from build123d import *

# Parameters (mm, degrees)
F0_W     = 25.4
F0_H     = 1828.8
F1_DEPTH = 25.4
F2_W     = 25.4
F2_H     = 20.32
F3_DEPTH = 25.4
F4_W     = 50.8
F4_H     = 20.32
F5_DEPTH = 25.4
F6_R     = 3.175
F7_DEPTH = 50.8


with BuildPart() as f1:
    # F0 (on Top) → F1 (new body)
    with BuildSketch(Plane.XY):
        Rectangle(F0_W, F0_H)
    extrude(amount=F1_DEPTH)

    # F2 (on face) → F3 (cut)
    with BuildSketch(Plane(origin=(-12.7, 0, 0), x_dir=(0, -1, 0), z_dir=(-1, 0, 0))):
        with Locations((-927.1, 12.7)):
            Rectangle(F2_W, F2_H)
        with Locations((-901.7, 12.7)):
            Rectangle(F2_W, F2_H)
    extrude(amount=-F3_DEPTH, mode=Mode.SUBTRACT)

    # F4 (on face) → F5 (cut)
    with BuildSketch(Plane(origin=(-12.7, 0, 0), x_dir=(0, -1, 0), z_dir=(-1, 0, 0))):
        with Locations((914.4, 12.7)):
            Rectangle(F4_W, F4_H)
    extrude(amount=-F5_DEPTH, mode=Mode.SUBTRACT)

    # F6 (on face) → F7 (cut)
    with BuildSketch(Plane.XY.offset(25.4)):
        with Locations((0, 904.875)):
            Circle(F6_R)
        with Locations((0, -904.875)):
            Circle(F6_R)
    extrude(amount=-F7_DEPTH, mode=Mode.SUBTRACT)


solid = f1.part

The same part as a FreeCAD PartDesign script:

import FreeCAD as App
import Part
import Sketcher
Q = App.Units.Quantity

doc = App.newDocument("Part")
body = doc.addObject("PartDesign::Body", "Body")

# Sketch on XY plane
sketch1 = doc.addObject("Sketcher::SketchObject", "Sketch")
body.addObject(sketch1)
sketch1.AttachmentSupport = (doc.XY_Plane, [""])
sketch1.MapMode = "FlatFace"
sketch1.addGeometry(Part.LineSegment(App.Vector(-13, 914, 0), App.Vector(-13, -914, 0)), False)
sketch1.addGeometry(Part.LineSegment(App.Vector(-13, -914, 0), App.Vector(13, -914, 0)), False)
sketch1.addGeometry(Part.LineSegment(App.Vector(13, -914, 0), App.Vector(13, 914, 0)), False)
sketch1.addGeometry(Part.LineSegment(App.Vector(13, 914, 0), App.Vector(-13, 914, 0)), False)
sketch1.addConstraint(Sketcher.Constraint("Coincident", 0, 2, 1, 1))
sketch1.addConstraint(Sketcher.Constraint("Coincident", 1, 2, 2, 1))
sketch1.addConstraint(Sketcher.Constraint("Coincident", 2, 2, 3, 1))
sketch1.addConstraint(Sketcher.Constraint("Coincident", 3, 2, 0, 1))
sketch1.addConstraint(Sketcher.Constraint("Vertical", 0))
sketch1.addConstraint(Sketcher.Constraint("Horizontal", 1))
sketch1.addConstraint(Sketcher.Constraint("Vertical", 2))
sketch1.addConstraint(Sketcher.Constraint("Horizontal", 3))
sketch1.addConstraint(Sketcher.Constraint("Symmetric", 0, 2, 2, 2, -1, 1))
sketch1.addConstraint(Sketcher.Constraint("DistanceX", 1, 1, 1, 2, Q("1 in")))
sketch1.addConstraint(Sketcher.Constraint("DistanceY", 0, 2, 0, 1, Q("72 in")))
pad1 = doc.addObject("PartDesign::Pad", "Pad")
body.addObject(pad1)
pad1.Profile = sketch1
pad1.Length = Q("1 in")

# Sketch on YZ plane
sketch2 = doc.addObject("Sketcher::SketchObject", "Sketch001")
body.addObject(sketch2)
sketch2.AttachmentSupport = (doc.YZ_Plane, [""])
sketch2.MapMode = "FlatFace"
sketch2.AttachmentOffset = App.Placement(App.Vector(0, 0, -0.5 * 25.4), App.Rotation())
sketch2.addGeometry(Part.LineSegment(App.Vector(940, 23, 0), App.Vector(940, 3, 0)), False)
sketch2.addGeometry(Part.LineSegment(App.Vector(940, 3, 0), App.Vector(889, 3, 0)), False)
sketch2.addGeometry(Part.LineSegment(App.Vector(889, 3, 0), App.Vector(889, 23, 0)), False)
sketch2.addGeometry(Part.LineSegment(App.Vector(889, 23, 0), App.Vector(940, 23, 0)), False)
sketch2.addConstraint(Sketcher.Constraint("Coincident", 0, 2, 1, 1))
sketch2.addConstraint(Sketcher.Constraint("Coincident", 1, 2, 2, 1))
sketch2.addConstraint(Sketcher.Constraint("Coincident", 2, 2, 3, 1))
sketch2.addConstraint(Sketcher.Constraint("Coincident", 3, 2, 0, 1))
sketch2.addConstraint(Sketcher.Constraint("Vertical", 0))
sketch2.addConstraint(Sketcher.Constraint("Horizontal", 1))
sketch2.addConstraint(Sketcher.Constraint("Vertical", 2))
sketch2.addConstraint(Sketcher.Constraint("Horizontal", 3))
sketch2.addConstraint(Sketcher.Constraint("DistanceX", 1, 2, 1, 1, Q("2 in")))
sketch2.addConstraint(Sketcher.Constraint("DistanceY", 0, 2, 0, 1, Q("0.8 in")))
sketch2.addConstraint(Sketcher.Constraint("DistanceX", -1, 1, 0, 2, Q("37 in")))
sketch2.addConstraint(Sketcher.Constraint("DistanceY", -1, 1, 0, 2, Q("0.1 in")))
pocket1 = doc.addObject("PartDesign::Pocket", "Pocket")
body.addObject(pocket1)
pocket1.Profile = sketch2
pocket1.Length = Q("1 in")
pocket1.Reversed = True

# Sketch on YZ plane
sketch3 = doc.addObject("Sketcher::SketchObject", "Sketch002")
body.addObject(sketch3)
sketch3.AttachmentSupport = (doc.YZ_Plane, [""])
sketch3.MapMode = "FlatFace"
sketch3.AttachmentOffset = App.Placement(App.Vector(0, 0, -0.5 * 25.4), App.Rotation())
sketch3.addGeometry(Part.LineSegment(App.Vector(-889, 23, 0), App.Vector(-889, 3, 0)), False)
sketch3.addGeometry(Part.LineSegment(App.Vector(-889, 3, 0), App.Vector(-940, 3, 0)), False)
sketch3.addGeometry(Part.LineSegment(App.Vector(-940, 3, 0), App.Vector(-940, 23, 0)), False)
sketch3.addGeometry(Part.LineSegment(App.Vector(-940, 23, 0), App.Vector(-889, 23, 0)), False)
sketch3.addConstraint(Sketcher.Constraint("Coincident", 0, 2, 1, 1))
sketch3.addConstraint(Sketcher.Constraint("Coincident", 1, 2, 2, 1))
sketch3.addConstraint(Sketcher.Constraint("Coincident", 2, 2, 3, 1))
sketch3.addConstraint(Sketcher.Constraint("Coincident", 3, 2, 0, 1))
sketch3.addConstraint(Sketcher.Constraint("Vertical", 0))
sketch3.addConstraint(Sketcher.Constraint("Horizontal", 1))
sketch3.addConstraint(Sketcher.Constraint("Vertical", 2))
sketch3.addConstraint(Sketcher.Constraint("Horizontal", 3))
sketch3.addConstraint(Sketcher.Constraint("DistanceX", 1, 2, 1, 1, Q("2 in")))
sketch3.addConstraint(Sketcher.Constraint("DistanceY", 0, 2, 0, 1, Q("0.8 in")))
sketch3.addConstraint(Sketcher.Constraint("DistanceX", 0, 2, -1, 1, Q("35 in")))
sketch3.addConstraint(Sketcher.Constraint("DistanceY", -1, 1, 0, 2, Q("0.1 in")))
pocket2 = doc.addObject("PartDesign::Pocket", "Pocket001")
body.addObject(pocket2)
pocket2.Profile = sketch3
pocket2.Length = Q("1 in")
pocket2.Reversed = True

# Sketch on XY plane
sketch4 = doc.addObject("Sketcher::SketchObject", "Sketch003")
body.addObject(sketch4)
sketch4.AttachmentSupport = (doc.XY_Plane, [""])
sketch4.MapMode = "FlatFace"
sketch4.AttachmentOffset = App.Placement(App.Vector(0, 0, 1 * 25.4), App.Rotation())
sketch4.addGeometry(Part.Circle(App.Vector(0, 904.9, 0), App.Vector(0, 0, 1), 3.2), False)
sketch4.addGeometry(Part.Circle(App.Vector(0, -904.9, 0), App.Vector(0, 0, 1), 3.2), False)
sketch4.addConstraint(Sketcher.Constraint("Equal", 0, 1))
sketch4.addConstraint(Sketcher.Constraint("Symmetric", 0, 3, 1, 3, -1, 1))
sketch4.addConstraint(Sketcher.Constraint("PointOnObject", 0, 3, -2))
sketch4.addConstraint(Sketcher.Constraint("Diameter", 0, Q("0.25 in")))
sketch4.addConstraint(Sketcher.Constraint("DistanceY", 1, 3, 0, 3, Q("71.25 in")))
pocket3 = doc.addObject("PartDesign::Pocket", "Pocket002")
body.addObject(pocket3)
pocket3.Profile = sketch4
pocket3.Length = Q("2 in")

doc.recompute()
